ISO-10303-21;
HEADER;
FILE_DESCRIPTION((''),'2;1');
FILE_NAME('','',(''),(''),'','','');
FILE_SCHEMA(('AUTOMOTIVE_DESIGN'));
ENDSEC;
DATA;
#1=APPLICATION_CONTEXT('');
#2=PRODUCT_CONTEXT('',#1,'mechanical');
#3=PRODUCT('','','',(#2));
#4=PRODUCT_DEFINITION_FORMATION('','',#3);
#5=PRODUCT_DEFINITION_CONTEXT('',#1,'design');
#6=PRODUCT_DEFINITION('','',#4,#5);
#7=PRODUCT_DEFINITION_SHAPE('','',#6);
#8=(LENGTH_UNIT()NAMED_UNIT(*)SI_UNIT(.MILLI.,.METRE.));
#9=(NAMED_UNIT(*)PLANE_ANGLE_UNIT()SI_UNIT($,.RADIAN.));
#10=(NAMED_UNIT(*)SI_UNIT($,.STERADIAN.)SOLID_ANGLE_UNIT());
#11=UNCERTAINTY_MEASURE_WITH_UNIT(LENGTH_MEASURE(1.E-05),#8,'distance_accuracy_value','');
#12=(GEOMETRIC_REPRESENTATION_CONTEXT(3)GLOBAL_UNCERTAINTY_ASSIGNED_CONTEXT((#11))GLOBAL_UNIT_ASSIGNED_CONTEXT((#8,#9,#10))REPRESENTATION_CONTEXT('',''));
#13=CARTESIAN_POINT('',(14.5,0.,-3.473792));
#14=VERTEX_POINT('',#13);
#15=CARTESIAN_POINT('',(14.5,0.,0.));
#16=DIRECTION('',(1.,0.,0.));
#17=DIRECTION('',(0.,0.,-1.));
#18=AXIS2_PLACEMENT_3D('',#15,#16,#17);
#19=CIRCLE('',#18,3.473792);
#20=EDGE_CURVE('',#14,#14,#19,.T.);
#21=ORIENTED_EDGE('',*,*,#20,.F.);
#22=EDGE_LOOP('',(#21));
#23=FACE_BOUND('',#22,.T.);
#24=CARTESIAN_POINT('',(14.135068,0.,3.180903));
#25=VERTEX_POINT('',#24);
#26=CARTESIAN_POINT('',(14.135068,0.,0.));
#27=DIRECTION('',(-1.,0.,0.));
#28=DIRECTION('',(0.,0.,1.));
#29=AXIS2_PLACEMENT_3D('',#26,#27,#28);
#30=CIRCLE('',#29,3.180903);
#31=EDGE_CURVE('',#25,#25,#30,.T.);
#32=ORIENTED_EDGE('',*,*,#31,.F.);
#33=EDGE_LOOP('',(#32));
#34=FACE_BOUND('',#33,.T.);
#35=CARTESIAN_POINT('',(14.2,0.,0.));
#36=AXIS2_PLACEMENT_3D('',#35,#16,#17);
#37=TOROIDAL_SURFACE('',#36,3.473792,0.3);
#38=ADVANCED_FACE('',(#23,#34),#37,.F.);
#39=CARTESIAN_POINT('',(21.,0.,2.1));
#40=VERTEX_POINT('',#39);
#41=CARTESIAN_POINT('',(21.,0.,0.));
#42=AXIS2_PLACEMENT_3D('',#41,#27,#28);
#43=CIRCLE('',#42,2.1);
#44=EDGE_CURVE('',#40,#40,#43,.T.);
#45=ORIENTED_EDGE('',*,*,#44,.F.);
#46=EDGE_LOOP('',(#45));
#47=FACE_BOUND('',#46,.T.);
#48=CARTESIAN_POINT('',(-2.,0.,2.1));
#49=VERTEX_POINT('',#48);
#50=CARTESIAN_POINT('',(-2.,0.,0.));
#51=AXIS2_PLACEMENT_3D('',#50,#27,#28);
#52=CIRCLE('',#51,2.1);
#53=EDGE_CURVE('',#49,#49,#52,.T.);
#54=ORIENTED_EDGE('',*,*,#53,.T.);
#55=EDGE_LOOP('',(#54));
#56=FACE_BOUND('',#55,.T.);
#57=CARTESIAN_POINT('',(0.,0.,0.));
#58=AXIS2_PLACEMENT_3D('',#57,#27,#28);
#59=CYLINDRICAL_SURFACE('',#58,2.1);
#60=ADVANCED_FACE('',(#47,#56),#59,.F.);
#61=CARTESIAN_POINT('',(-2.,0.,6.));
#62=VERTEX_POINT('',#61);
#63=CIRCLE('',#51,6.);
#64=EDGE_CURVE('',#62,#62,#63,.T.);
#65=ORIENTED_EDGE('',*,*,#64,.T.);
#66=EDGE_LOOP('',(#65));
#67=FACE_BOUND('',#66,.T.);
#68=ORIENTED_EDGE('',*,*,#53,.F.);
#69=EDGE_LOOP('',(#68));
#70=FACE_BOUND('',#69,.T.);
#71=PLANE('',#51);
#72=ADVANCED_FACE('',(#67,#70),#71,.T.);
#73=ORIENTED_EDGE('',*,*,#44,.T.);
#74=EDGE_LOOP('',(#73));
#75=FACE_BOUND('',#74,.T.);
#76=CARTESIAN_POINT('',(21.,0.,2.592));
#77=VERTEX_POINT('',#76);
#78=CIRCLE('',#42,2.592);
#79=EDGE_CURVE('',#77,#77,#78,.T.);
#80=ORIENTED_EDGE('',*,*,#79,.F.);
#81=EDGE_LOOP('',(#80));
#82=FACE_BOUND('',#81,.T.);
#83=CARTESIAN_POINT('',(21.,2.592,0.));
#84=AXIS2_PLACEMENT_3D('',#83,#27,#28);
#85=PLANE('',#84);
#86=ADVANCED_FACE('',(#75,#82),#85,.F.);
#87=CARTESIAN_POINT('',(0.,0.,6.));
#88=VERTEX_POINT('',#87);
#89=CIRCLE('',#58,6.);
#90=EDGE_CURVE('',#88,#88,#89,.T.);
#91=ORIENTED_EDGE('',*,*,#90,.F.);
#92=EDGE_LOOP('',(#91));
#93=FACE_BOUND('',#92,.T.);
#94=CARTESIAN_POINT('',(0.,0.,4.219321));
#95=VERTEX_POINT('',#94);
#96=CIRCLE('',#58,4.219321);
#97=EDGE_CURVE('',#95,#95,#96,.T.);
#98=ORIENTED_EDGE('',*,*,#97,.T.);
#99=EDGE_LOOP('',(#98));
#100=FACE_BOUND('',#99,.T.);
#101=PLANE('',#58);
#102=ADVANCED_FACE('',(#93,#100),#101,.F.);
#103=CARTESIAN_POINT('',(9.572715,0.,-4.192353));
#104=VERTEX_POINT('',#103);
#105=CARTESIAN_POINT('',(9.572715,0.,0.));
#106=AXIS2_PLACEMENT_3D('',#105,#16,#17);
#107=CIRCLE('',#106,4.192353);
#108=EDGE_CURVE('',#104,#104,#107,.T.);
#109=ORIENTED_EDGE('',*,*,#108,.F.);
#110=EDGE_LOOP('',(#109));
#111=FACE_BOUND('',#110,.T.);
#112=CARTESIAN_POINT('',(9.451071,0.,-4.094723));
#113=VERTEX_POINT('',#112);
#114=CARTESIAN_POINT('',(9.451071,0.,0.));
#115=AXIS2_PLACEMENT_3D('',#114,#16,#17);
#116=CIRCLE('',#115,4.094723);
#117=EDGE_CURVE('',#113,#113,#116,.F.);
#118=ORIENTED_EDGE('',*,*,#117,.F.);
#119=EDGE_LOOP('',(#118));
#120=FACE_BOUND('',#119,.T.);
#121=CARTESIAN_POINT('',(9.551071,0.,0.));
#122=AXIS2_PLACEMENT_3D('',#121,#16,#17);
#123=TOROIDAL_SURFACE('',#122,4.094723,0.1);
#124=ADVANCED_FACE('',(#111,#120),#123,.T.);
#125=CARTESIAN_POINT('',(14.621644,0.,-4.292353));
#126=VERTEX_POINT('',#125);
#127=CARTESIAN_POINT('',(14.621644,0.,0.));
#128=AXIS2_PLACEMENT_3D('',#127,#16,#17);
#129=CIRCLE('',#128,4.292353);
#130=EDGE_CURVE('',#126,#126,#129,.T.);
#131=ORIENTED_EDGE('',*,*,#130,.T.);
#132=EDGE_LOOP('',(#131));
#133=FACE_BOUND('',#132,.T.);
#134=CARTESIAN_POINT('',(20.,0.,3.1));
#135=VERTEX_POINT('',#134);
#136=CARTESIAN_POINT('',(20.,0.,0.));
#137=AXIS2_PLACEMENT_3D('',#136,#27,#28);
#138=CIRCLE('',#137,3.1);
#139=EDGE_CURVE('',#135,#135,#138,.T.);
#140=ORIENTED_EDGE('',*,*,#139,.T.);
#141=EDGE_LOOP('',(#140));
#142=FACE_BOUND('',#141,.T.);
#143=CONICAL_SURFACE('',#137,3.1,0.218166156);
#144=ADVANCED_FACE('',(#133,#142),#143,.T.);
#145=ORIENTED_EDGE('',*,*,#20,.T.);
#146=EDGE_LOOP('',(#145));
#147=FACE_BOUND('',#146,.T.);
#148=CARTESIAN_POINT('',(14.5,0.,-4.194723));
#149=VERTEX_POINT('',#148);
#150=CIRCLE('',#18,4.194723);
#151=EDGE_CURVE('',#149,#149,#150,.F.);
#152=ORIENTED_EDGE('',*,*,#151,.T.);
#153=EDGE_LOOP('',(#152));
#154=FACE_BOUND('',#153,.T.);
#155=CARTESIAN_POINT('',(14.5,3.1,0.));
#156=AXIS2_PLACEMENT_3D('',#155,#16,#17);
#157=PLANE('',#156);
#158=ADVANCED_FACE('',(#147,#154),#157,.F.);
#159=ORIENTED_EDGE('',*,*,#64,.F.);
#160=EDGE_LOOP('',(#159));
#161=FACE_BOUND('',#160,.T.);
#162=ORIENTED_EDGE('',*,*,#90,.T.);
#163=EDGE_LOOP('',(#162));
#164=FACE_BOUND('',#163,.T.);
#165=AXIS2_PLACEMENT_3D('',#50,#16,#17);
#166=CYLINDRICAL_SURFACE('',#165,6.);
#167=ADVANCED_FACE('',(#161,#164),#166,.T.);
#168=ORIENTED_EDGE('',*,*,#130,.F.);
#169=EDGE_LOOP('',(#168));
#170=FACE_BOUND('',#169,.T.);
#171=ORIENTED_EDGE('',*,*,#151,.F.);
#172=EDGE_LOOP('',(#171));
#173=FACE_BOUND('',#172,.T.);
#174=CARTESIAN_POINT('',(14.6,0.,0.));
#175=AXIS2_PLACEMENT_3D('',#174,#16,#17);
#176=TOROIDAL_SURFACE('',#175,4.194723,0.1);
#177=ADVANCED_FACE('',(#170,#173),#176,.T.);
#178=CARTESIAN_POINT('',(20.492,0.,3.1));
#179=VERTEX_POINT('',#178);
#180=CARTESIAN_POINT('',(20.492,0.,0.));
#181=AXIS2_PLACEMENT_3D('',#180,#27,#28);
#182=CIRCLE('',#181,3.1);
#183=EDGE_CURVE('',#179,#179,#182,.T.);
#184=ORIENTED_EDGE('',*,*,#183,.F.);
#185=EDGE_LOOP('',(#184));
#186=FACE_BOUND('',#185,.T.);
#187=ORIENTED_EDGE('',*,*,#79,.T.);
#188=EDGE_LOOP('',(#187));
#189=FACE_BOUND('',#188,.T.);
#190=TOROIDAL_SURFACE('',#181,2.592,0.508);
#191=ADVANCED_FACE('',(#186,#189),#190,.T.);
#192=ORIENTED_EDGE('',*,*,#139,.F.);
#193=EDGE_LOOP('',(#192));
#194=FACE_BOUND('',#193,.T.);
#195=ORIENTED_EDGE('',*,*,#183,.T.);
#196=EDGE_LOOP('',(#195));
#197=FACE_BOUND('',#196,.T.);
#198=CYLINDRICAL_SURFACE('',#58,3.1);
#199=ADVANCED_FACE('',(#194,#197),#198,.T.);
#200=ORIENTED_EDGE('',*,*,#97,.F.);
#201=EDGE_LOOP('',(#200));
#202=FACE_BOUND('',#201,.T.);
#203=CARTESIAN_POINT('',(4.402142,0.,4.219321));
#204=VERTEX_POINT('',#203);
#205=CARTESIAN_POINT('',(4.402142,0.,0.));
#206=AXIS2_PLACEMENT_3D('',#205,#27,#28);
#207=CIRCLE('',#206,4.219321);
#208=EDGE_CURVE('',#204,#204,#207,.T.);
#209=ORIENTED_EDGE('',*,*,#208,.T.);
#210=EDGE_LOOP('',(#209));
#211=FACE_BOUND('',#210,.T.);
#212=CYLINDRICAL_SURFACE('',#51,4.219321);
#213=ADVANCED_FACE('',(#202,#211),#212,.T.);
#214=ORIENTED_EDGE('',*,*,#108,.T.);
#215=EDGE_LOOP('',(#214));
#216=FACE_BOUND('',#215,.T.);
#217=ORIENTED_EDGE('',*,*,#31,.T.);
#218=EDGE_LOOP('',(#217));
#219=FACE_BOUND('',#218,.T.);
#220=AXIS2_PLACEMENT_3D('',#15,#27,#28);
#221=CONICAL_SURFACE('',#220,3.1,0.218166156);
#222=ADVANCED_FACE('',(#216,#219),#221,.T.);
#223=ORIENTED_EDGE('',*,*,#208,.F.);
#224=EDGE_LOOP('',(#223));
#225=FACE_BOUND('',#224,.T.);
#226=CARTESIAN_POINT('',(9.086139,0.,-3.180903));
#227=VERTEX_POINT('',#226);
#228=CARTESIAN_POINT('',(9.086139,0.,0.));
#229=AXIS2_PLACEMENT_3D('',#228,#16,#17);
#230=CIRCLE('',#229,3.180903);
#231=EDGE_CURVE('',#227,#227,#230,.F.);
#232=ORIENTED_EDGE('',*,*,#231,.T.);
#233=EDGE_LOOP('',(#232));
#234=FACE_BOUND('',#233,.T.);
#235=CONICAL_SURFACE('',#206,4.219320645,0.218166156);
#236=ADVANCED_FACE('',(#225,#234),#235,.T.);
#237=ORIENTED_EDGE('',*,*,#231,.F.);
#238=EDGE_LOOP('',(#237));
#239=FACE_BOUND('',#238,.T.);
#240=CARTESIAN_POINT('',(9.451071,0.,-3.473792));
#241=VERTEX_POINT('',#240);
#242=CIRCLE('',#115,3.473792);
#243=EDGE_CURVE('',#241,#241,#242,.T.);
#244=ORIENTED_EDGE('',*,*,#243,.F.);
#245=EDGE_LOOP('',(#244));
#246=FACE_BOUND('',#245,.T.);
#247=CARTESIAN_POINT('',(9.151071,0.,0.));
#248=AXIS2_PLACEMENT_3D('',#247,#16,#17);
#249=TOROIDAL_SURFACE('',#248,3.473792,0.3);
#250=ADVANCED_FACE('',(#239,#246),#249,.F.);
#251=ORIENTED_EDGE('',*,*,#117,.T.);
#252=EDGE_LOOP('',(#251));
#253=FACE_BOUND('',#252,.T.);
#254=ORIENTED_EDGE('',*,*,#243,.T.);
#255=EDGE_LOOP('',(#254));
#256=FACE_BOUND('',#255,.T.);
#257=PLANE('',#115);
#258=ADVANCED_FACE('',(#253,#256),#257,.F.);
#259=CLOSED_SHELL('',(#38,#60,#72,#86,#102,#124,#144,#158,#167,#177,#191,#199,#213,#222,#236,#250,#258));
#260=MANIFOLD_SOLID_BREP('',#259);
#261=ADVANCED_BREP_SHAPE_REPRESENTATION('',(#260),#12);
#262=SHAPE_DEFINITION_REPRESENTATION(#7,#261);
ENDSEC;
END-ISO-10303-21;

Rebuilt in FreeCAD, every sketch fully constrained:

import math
import FreeCAD as App
import Part
import Sketcher
Q = App.Units.Quantity


def edges_at(feature, points):
    """Names of the edges that pass closest to the given points."""
    edges = feature.Shape.Edges
    near = lambda p: min(range(len(edges)), key=lambda i: edges[i].distToShape(Part.Vertex(*p))[0])
    return sorted({f"Edge{near(p) + 1}" for p in points})


def add_polygon(sketch, points):
    """Adds a closed chain of lines whose ends are joined by coincident constraints."""
    first, n = sketch.GeometryCount, len(points)
    for a, b in zip(points, points[1:] + points[:1]):
        sketch.addGeometry(Part.LineSegment(App.Vector(*a, 0), App.Vector(*b, 0)), False)
    for i in range(n):
        sketch.addConstraint(Sketcher.Constraint("Coincident", first + i, 2, first + (i + 1) % n, 1))

doc = App.newDocument("Part")
body = doc.addObject("PartDesign::Body", "Body")

sketch1 = body.newObject("Sketcher::SketchObject", "Sketch")
sketch1.AttachmentSupport = (doc.getObject("XY_Plane"), [""])
sketch1.MapMode = "FlatFace"
sketch1.addGeometry([
    Part.LineSegment(App.Vector(0, 2.1, 0), App.Vector(21, 2.1, 0)),
    Part.LineSegment(App.Vector(21, 2.1, 0), App.Vector(21, 2.592, 0)),
    Part.ArcOfCircle(Part.Circle(App.Vector(20.492, 2.592, 0), App.Vector(0, 0, 1), 0.508), math.radians(0), math.radians(90)),
    Part.LineSegment(App.Vector(20.492, 3.1, 0), App.Vector(20, 3.1, 0)),
    Part.LineSegment(App.Vector(20, 3.1, 0), App.Vector(14.5, 4.319321, 0)),
    Part.LineSegment(App.Vector(14.5, 4.319321, 0), App.Vector(14.5, 3.1, 0)),
    Part.LineSegment(App.Vector(14.5, 3.1, 0), App.Vector(0, 3.1, 0)),
    Part.LineSegment(App.Vector(0, 3.1, 0), App.Vector(0, 2.1, 0)),
], False)
sketch1.addConstraint([
    Sketcher.Constraint("Coincident", 0, 2, 1, 1),
    Sketcher.Constraint("Tangent", 1, 2, 2, 1),
    Sketcher.Constraint("Tangent", 2, 2, 3, 1),
    Sketcher.Constraint("Coincident", 3, 2, 4, 1),
    Sketcher.Constraint("Coincident", 4, 2, 5, 1),
    Sketcher.Constraint("Coincident", 5, 2, 6, 1),
    Sketcher.Constraint("Coincident", 6, 2, 7, 1),
    Sketcher.Constraint("Coincident", 7, 2, 0, 1),
    Sketcher.Constraint("Horizontal", 0),
    Sketcher.Constraint("Vertical", 1),
    Sketcher.Constraint("Horizontal", 3),
    Sketcher.Constraint("Vertical", 5),
    Sketcher.Constraint("Horizontal", 6),
    Sketcher.Constraint("Vertical", 7),
    Sketcher.Constraint("PointOnObject", 6, 2, -2),
    Sketcher.Constraint("Horizontal", 3, 2, 5, 2),
    Sketcher.Constraint("Equal", 3, 1),
    Sketcher.Constraint("DistanceX", 0, 1, 0, 2, Q("21 mm")),
    Sketcher.Constraint("DistanceY", 7, 2, 7, 1, Q("1 mm")),
    Sketcher.Constraint("DistanceX", 6, 2, 6, 1, Q("14.5 mm")),
    Sketcher.Constraint("Angle", 4, Q("167.5 deg")),
    Sketcher.Constraint("Radius", 2, Q("0.508 mm")),
    Sketcher.Constraint("DistanceY", -1, 1, 0, 2, Q("2.1 mm")),
])
revolution = body.newObject("PartDesign::Revolution", "Revolution")
revolution.Profile = sketch1
revolution.ReferenceAxis = (sketch1, ["H_Axis"])
revolution.Angle = 360

sketch2 = body.newObject("Sketcher::SketchObject", "Sketch001")
sketch2.AttachmentSupport = (doc.getObject("YZ_Plane"), [""])
sketch2.MapMode = "FlatFace"
sketch2.addGeometry([
    Part.Circle(App.Vector(0, 0, 0), App.Vector(0, 0, 1), 6),
    Part.Circle(App.Vector(0, 0, 0), App.Vector(0, 0, 1), 2.1),
], False)
sketch2.addConstraint([
    Sketcher.Constraint("Coincident", 0, 3, -1, 1),
    Sketcher.Constraint("Coincident", 1, 3, -1, 1),
    Sketcher.Constraint("Diameter", 0, Q("12 mm")),
    Sketcher.Constraint("Diameter", 1, Q("4.2 mm")),
])
pad1 = body.newObject("PartDesign::Pad", "Pad")
pad1.Profile = sketch2
pad1.Length = 2
pad1.Reversed = True

sketch3 = body.newObject("Sketcher::SketchObject", "Sketch002")
sketch3.AttachmentSupport = (doc.getObject("XY_Plane"), [""])
sketch3.MapMode = "FlatFace"
add_polygon(sketch3, [(9.451071, 3.1), (4.402142, 4.219321), (0, 4.219321), (0, 3.1)])
add_polygon(sketch3, [(9.451071, 4.219321), (9.451071, 3.1), (14.5, 3.1)])
sketch3.addConstraint([
    Sketcher.Constraint("Horizontal", 1),
    Sketcher.Constraint("Vertical", 2),
    Sketcher.Constraint("Horizontal", 3),
    Sketcher.Constraint("Vertical", 4),
    Sketcher.Constraint("Horizontal", 5),
    Sketcher.Constraint("Coincident", 4, 2, 3, 2),
    Sketcher.Constraint("PointOnObject", 1, 2, -2),
    Sketcher.Constraint("Parallel", 0, 6),
    Sketcher.Constraint("Horizontal", 1, 2, 6, 2),
    Sketcher.Constraint("Angle", 0, Q("167.5 deg")),
    Sketcher.Constraint("DistanceY", -1, 1, 2, 2, Q("3.1 mm")),
    Sketcher.Constraint("DistanceX", -1, 1, 5, 2, Q("14.5 mm")),
    Sketcher.Constraint("DistanceX", 1, 2, 1, 1, Q("4.402142 mm")),
])
revolution2 = body.newObject("PartDesign::Revolution", "Revolution001")
revolution2.Profile = sketch3
revolution2.ReferenceAxis = (sketch3, ["H_Axis"])
revolution2.Angle = 360
doc.recompute()

fillet = body.newObject("PartDesign::Fillet", "Fillet")
fillet.Base = (revolution2, edges_at(revolution2, [(9.451, 0, -4.219), (14.5, 0, -4.319)]))
fillet.Radius = 0.1
doc.recompute()

fillet2 = body.newObject("PartDesign::Fillet", "Fillet001")
fillet2.Base = (fillet, edges_at(fillet, [(9.451, 0, -3.1), (14.5, 0, -3.1)]))
fillet2.Radius = 0.3

doc.recompute()
